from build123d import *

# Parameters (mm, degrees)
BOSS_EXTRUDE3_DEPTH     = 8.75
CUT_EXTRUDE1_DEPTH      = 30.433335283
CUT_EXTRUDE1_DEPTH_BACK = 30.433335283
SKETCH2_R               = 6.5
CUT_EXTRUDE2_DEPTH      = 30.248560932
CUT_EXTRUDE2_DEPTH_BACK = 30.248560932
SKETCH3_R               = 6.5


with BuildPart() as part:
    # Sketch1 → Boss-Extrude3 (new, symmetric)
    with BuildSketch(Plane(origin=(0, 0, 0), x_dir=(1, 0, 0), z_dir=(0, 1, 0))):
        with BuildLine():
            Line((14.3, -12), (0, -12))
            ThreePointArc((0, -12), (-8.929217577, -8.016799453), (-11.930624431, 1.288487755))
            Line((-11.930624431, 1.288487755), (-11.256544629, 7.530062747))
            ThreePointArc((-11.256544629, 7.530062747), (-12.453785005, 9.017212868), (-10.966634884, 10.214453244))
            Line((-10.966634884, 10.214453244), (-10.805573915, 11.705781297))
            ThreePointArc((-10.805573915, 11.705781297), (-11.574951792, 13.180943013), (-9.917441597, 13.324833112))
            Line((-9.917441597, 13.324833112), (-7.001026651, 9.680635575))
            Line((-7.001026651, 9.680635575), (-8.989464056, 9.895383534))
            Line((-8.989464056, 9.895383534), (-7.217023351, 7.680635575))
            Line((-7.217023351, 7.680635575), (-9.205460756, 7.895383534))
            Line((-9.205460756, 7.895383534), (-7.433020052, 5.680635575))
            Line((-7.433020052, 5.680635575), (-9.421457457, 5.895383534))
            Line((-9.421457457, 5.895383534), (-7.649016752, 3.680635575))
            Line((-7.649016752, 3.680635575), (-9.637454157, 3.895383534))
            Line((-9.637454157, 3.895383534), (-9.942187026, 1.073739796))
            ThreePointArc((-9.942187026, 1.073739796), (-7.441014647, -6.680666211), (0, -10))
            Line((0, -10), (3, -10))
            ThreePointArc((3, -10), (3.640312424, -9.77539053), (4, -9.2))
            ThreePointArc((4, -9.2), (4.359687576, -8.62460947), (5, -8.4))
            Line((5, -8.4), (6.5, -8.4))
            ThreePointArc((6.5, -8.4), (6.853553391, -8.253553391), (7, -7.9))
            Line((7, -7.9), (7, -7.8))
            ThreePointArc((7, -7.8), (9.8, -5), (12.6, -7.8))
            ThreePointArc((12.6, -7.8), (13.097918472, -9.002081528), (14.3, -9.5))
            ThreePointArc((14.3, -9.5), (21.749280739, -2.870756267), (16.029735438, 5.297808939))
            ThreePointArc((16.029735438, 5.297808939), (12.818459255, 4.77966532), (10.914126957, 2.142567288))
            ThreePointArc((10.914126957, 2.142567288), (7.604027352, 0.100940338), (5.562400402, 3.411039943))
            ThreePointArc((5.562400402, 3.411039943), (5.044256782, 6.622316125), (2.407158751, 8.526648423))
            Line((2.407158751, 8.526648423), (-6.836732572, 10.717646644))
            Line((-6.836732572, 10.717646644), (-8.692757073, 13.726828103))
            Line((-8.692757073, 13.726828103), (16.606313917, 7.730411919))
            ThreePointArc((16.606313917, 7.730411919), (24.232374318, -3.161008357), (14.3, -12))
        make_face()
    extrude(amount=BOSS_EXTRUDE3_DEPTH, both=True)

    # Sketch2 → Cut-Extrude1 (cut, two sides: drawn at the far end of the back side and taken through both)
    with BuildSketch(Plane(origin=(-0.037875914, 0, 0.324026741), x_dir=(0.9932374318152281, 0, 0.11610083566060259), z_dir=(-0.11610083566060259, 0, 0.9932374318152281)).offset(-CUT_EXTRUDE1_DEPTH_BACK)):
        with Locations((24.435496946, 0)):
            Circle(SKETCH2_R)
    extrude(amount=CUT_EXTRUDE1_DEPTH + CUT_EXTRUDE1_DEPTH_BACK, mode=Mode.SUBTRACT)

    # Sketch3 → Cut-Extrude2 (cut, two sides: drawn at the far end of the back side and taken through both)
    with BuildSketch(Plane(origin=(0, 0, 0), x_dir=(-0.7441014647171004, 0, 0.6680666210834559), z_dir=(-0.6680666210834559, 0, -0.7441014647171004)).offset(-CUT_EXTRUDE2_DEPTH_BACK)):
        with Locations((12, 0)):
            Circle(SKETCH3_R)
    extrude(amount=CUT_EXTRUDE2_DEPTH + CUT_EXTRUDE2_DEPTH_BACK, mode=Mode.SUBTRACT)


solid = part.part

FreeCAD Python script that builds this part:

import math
import FreeCAD as App
import Part
import Sketcher
from FreeCAD import Vector

doc = App.newDocument("Part")
body = doc.addObject("PartDesign::Body", "Body")

# Sketch on XZ plane
sketch1 = body.newObject("Sketcher::SketchObject", "Sketch")
sketch1.AttachmentSupport = (doc.getObject("XZ_Plane"), [""])
sketch1.MapMode = "FlatFace"
sketch1.addGeometry([
    Part.LineSegment(Vector(0, 12, 0), Vector(14.3, 12, 0)),  # 0
    Part.ArcOfCircle(Part.Circle(Vector(14.3, 2, 0), Vector(0, 0, 1), 10), math.radians(-76.665753), math.radians(90)),  # 1
    Part.LineSegment(Vector(16.606314, -7.730412, 0), Vector(-8.692757, -13.726828, 0)),  # 2
    Part.LineSegment(Vector(-8.692757, -13.726828, 0), Vector(-6.836733, -10.717647, 0)),  # 3
    Part.LineSegment(Vector(-6.836733, -10.717647, 0), Vector(2.407159, -8.526648, 0)),  # 4
    Part.ArcOfCircle(Part.Circle(Vector(1.426975, -4.391223, 0), Vector(0, 0, 1), 4.25), math.radians(-76.665753), math.radians(13.334247)),  # 5
    Part.ArcOfCircle(Part.Circle(Vector(8.238264, -2.776804, 0), Vector(0, 0, 1), 2.75), math.radians(13.334247), math.radians(193.334247)),  # 6
    Part.ArcOfCircle(Part.Circle(Vector(15.049552, -1.162384, 0), Vector(0, 0, 1), 4.25), math.radians(-166.665753), math.radians(-76.665753)),  # 7
    Part.ArcOfCircle(Part.Circle(Vector(14.3, 2, 0), Vector(0, 0, 1), 7.5), math.radians(-76.665753), math.radians(90)),  # 8
    Part.ArcOfCircle(Part.Circle(Vector(14.3, 7.8, 0), Vector(0, 0, 1), 1.7), math.radians(90), math.radians(180)),  # 9
    Part.ArcOfCircle(Part.Circle(Vector(9.8, 7.8, 0), Vector(0, 0, 1), 2.8), math.radians(180), math.radians(360)),  # 10
    Part.LineSegment(Vector(7, 7.8, 0), Vector(7, 7.9, 0)),  # 11
    Part.ArcOfCircle(Part.Circle(Vector(6.5, 7.9, 0), Vector(0, 0, 1), 0.5), math.radians(0), math.radians(90)),  # 12
    Part.LineSegment(Vector(6.5, 8.4, 0), Vector(5, 8.4, 0)),  # 13
    Part.ArcOfCircle(Part.Circle(Vector(5, 9.425, 0), Vector(0, 0, 1), 1.025), math.radians(-167.319617), math.radians(-90)),  # 14
    Part.ArcOfCircle(Part.Circle(Vector(3, 8.975, 0), Vector(0, 0, 1), 1.025), math.radians(12.680383), math.radians(90)),  # 15
    Part.LineSegment(Vector(3, 10, 0), Vector(0, 10, 0)),  # 16
    Part.ArcOfCircle(Part.Circle(Vector(0, 0, 0), Vector(0, 0, 1), 10), math.radians(90), math.radians(186.163959)),  # 17
    Part.LineSegment(Vector(-9.942187, -1.07374, 0), Vector(-9.637454, -3.895384, 0)),  # 18
    Part.LineSegment(Vector(-9.637454, -3.895384, 0), Vector(-7.649017, -3.680636, 0)),  # 19
    Part.LineSegment(Vector(-7.649017, -3.680636, 0), Vector(-9.421457, -5.895384, 0)),  # 20
    Part.LineSegment(Vector(-9.421457, -5.895384, 0), Vector(-7.43302, -5.680636, 0)),  # 21
    Part.LineSegment(Vector(-7.43302, -5.680636, 0), Vector(-9.205461, -7.895384, 0)),  # 22
    Part.LineSegment(Vector(-9.205461, -7.895384, 0), Vector(-7.217023, -7.680636, 0)),  # 23
    Part.LineSegment(Vector(-7.217023, -7.680636, 0), Vector(-8.989464, -9.895384, 0)),  # 24
    Part.LineSegment(Vector(-8.989464, -9.895384, 0), Vector(-7.001027, -9.680636, 0)),  # 25
    Part.LineSegment(Vector(-7.001027, -9.680636, 0), Vector(-9.917442, -13.324833, 0)),  # 26
    Part.ArcOfCircle(Part.Circle(Vector(-10.6982, -12.7, 0), Vector(0, 0, 1), 1), math.radians(96.163959), math.radians(321.330061)),  # 27
    Part.LineSegment(Vector(-10.805574, -11.705781, 0), Vector(-10.966635, -10.214453, 0)),  # 28
    Part.ArcOfCircle(Part.Circle(Vector(-11.11159, -8.872258, 0), Vector(0, 0, 1), 1.35), math.radians(96.163959), math.radians(276.163959)),  # 29
    Part.LineSegment(Vector(-11.256545, -7.530063, 0), Vector(-11.930624, -1.288488, 0)),  # 30
    Part.ArcOfCircle(Part.Circle(Vector(0, 0, 0), Vector(0, 0, 1), 12), math.radians(90), math.radians(186.163959)),  # 31
], False)
sketch1.addConstraint([
    Sketcher.Constraint("Tangent", 0, 2, 1, 2),
    Sketcher.Constraint("Tangent", 1, 1, 2, 1),
    Sketcher.Constraint("Coincident", 2, 2, 3, 1),
    Sketcher.Constraint("Coincident", 3, 2, 4, 1),
    Sketcher.Constraint("Tangent", 4, 2, 5, 1),
    Sketcher.Constraint("Tangent", 5, 2, 6, 2),
    Sketcher.Constraint("Tangent", 6, 1, 7, 1),
    Sketcher.Constraint("Tangent", 7, 2, 8, 1),
    Sketcher.Constraint("Tangent", 8, 2, 9, 1),
    Sketcher.Constraint("Tangent", 9, 2, 10, 2),
    Sketcher.Constraint("Tangent", 10, 1, 11, 1),
    Sketcher.Constraint("Tangent", 11, 2, 12, 1),
    Sketcher.Constraint("Tangent", 12, 2, 13, 1),
    Sketcher.Constraint("Tangent", 13, 2, 14, 2),
    Sketcher.Constraint("Tangent", 14, 1, 15, 1),
    Sketcher.Constraint("Tangent", 15, 2, 16, 1),
    Sketcher.Constraint("Tangent", 16, 2, 17, 1),
    Sketcher.Constraint("Tangent", 17, 2, 18, 1),
    Sketcher.Constraint("Coincident", 18, 2, 19, 1),
    Sketcher.Constraint("Coincident", 19, 2, 20, 1),
    Sketcher.Constraint("Coincident", 20, 2, 21, 1),
    Sketcher.Constraint("Coincident", 21, 2, 22, 1),
    Sketcher.Constraint("Coincident", 22, 2, 23, 1),
    Sketcher.Constraint("Coincident", 23, 2, 24, 1),
    Sketcher.Constraint("Coincident", 24, 2, 25, 1),
    Sketcher.Constraint("Coincident", 25, 2, 26, 1),
    Sketcher.Constraint("Tangent", 26, 2, 27, 2),
    Sketcher.Constraint("Coincident", 27, 1, 28, 1),
    Sketcher.Constraint("Coincident", 28, 2, 29, 2),
    Sketcher.Constraint("Coincident", 29, 1, 30, 1),
    Sketcher.Constraint("Tangent", 30, 2, 31, 2),
    Sketcher.Constraint("Tangent", 31, 1, 0, 1),
    Sketcher.Constraint("Horizontal", 0),
    Sketcher.Constraint("Vertical", 11),
    Sketcher.Constraint("Horizontal", 13),
    Sketcher.Constraint("Horizontal", 16),
    Sketcher.Constraint("Coincident", 17, 3, -1, 1),
    Sketcher.Constraint("Coincident", 31, 3, -1, 1),
    Sketcher.Constraint("Coincident", 8, 3, 1, 3),
    Sketcher.Constraint("Equal", 5, 7),
    Sketcher.Constraint("Equal", 14, 15),
    Sketcher.Constraint("Equal", 1, 17),
    Sketcher.Constraint("Parallel", 2, 4),
    Sketcher.Constraint("Perpendicular", 18, 19),
    Sketcher.Constraint("Parallel", 19, 21),
    Sketcher.Constraint("Parallel", 20, 22),
    Sketcher.Constraint("Parallel", 21, 23),
    Sketcher.Constraint("Parallel", 22, 24),
    Sketcher.Constraint("Parallel", 23, 25),
    Sketcher.Constraint("Parallel", 24, 26),
    Sketcher.Constraint("Perpendicular", 25, 28),
    Sketcher.Constraint("Parallel", 28, 30),
    Sketcher.Constraint("Horizontal", 9, 3, 10, 3),
    Sketcher.Constraint("Vertical", 8, 3, 9, 3),
    Sketcher.Constraint("Equal", 19, 21),
    Sketcher.Constraint("Equal", 20, 22),
    Sketcher.Constraint("Equal", 21, 23),
    Sketcher.Constraint("Equal", 22, 24),
    Sketcher.Constraint("Equal", 23, 25),
    Sketcher.Constraint("Radius", 1, 10.0),
    Sketcher.Constraint("Radius", 27, 1.0),
    Sketcher.Constraint("Radius", 31, 12.0),
    Sketcher.Constraint("Radius", 8, 7.5),
    Sketcher.Constraint("Radius", 9, 1.7),
    Sketcher.Constraint("Radius", 10, 2.8),
    Sketcher.Constraint("Radius", 12, 0.5),
    Sketcher.Constraint("DistanceX", 16, 2, 16, 1, 3.0),
    Sketcher.Constraint("Radius", 5, 4.25),
    Sketcher.Constraint("Radius", 6, 2.75),
    Sketcher.Constraint("Radius", 29, 1.35),
    Sketcher.Constraint("Distance", 2, 26.0),
    Sketcher.Constraint("Distance", 19, 2.0),
    Sketcher.Constraint("DistanceX", 0, 1, 0, 2, 14.3),
    Sketcher.Constraint("DistanceX", 13, 2, 13, 1, 1.5),
    Sketcher.Constraint("DistanceY", 11, 1, 11, 2, 0.1),
    Sketcher.Constraint("DistanceY", 20, 2, 18, 2, 2.0),
    Sketcher.Constraint("Distance", 4, 9.5),
    Sketcher.Constraint("Distance", 28, 1.5),
    Sketcher.Constraint("DistanceY", 27, 3, -1, 1, 12.7),
    Sketcher.Constraint("DistanceY", 3, 2, 4, 2, 2.190998),
    Sketcher.Constraint("DistanceX", 27, 3, -1, 1, 10.6982),
    Sketcher.Constraint("DistanceX", -1, 1, 5, 2, 5.5624),
    Sketcher.Constraint("Distance", 18, 2.838051),
    Sketcher.Constraint("Distance", 26, 4.66751),
    Sketcher.Constraint("DistanceX", 29, 3, -1, 1, 11.11159),
    Sketcher.Constraint("DistanceX", -1, 1, 4, 2, 2.407159),
    Sketcher.Constraint("DistanceY", 4, 2, -1, 1, 8.526648),
    Sketcher.Constraint("DistanceY", 27, 1, -1, 1, 11.705781),
])
pad1 = body.newObject("PartDesign::Pad", "Pad")
pad1.Profile = sketch1
pad1.Length = 17.5
pad1.Midplane = True

# Sketch on an angled plane
sketch2 = body.newObject("Sketcher::SketchObject", "Sketch001")
sketch2.Placement = App.Placement(Vector(-0.037876, 0, 0.324027), App.Rotation(Vector(0.993237432, 0, 0.116100836), Vector(0, 1, 0), Vector(-0.116100836, 0, 0.993237432), "ZXY"))
sketch2.addGeometry(Part.Circle(Vector(24.435497, 0, 0), Vector(0, 0, 1), 6.5), False)
sketch2.addConstraint([
    Sketcher.Constraint("PointOnObject", 0, 3, -1),
    Sketcher.Constraint("Diameter", 0, 13.0),
    Sketcher.Constraint("DistanceX", -1, 1, 0, 3, 24.435497),
])
pocket1 = body.newObject("PartDesign::Pocket", "Pocket")
pocket1.Profile = sketch2
pocket1.Type = "ThroughAll"
pocket1.Midplane = True

# Sketch on an angled plane
sketch3 = body.newObject("Sketcher::SketchObject", "Sketch002")
sketch3.Placement = App.Placement(Vector(0, 0, 0), App.Rotation(Vector(-0.744101465, 0, 0.668066621), Vector(0, 1, 0), Vector(-0.668066621, 0, -0.744101465), "ZXY"))
sketch3.addGeometry(Part.Circle(Vector(12, 0, 0), Vector(0, 0, 1), 6.5), False)
sketch3.addConstraint([
    Sketcher.Constraint("PointOnObject", 0, 3, -1),
    Sketcher.Constraint("Diameter", 0, 13.0),
    Sketcher.Constraint("DistanceX", -1, 1, 0, 3, 12.0),
])
pocket2 = body.newObject("PartDesign::Pocket", "Pocket001")
pocket2.Profile = sketch3
pocket2.Type = "ThroughAll"
pocket2.Midplane = True

doc.recompute()
